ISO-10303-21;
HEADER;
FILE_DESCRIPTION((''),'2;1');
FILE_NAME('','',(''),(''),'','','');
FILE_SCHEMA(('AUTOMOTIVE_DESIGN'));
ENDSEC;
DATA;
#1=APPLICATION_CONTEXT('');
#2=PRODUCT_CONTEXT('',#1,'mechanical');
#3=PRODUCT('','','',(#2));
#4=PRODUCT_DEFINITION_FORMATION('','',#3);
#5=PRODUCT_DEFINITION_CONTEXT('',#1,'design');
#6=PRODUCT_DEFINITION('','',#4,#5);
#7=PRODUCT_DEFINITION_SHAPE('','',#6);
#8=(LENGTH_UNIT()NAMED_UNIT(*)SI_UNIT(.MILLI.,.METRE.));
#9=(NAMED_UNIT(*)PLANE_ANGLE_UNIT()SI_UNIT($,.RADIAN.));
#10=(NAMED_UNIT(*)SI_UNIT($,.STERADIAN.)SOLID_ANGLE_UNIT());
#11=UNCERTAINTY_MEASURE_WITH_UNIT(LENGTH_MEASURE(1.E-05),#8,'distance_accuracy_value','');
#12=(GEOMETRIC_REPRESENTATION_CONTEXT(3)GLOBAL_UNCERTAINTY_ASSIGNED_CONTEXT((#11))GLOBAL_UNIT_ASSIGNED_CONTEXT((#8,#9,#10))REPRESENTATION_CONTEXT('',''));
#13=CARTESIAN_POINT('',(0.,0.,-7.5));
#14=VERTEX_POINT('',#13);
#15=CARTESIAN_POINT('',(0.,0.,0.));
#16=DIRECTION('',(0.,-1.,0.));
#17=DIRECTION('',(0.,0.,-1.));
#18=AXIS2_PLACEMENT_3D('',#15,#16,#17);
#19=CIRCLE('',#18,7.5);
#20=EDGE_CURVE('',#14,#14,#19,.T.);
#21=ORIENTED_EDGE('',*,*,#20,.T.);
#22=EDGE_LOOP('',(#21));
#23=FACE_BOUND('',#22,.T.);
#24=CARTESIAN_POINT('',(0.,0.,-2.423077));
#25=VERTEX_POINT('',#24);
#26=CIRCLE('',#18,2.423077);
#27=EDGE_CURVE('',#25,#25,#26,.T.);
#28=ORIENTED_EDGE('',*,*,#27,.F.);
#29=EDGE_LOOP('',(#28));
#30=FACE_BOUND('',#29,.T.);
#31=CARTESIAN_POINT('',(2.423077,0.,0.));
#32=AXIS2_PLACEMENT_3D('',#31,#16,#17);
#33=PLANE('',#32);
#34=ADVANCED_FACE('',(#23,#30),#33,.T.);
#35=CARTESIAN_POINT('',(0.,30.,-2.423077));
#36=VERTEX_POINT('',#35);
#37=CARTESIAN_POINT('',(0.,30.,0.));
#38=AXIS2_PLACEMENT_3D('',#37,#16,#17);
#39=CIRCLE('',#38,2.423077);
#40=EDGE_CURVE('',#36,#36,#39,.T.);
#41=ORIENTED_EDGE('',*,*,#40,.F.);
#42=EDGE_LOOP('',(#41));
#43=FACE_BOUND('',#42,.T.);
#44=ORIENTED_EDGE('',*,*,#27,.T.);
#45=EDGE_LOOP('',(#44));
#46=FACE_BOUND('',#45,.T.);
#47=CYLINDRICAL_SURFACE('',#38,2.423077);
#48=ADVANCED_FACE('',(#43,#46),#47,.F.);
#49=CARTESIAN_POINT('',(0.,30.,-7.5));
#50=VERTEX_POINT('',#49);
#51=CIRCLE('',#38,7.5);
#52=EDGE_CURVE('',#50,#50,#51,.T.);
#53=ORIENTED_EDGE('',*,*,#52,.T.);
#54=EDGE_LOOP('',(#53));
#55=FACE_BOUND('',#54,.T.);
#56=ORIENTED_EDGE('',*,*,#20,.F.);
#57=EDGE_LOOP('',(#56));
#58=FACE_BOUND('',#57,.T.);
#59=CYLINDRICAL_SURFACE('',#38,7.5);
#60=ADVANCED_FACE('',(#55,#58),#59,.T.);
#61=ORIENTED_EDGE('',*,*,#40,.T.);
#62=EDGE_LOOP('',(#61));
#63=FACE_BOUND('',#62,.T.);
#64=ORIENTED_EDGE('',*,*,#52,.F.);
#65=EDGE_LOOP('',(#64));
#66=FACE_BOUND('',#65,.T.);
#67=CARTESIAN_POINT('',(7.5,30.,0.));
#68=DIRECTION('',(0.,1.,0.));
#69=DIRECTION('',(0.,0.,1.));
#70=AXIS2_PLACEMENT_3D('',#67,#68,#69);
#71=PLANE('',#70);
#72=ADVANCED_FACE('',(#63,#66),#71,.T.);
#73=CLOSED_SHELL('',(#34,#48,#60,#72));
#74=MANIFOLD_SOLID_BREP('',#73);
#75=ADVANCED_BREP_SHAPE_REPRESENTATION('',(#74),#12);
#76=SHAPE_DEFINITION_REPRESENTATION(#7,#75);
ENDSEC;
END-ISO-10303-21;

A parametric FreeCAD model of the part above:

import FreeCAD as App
import Part
import Sketcher

V = App.Vector
Q = App.Units.Quantity

doc = App.newDocument("Part")
body = doc.addObject("PartDesign::Body", "Body")

sketch1 = body.newObject("Sketcher::SketchObject", "Sketch")
sketch1.AttachmentSupport = (doc.getObject("XY_Plane"), [""])
sketch1.MapMode = "FlatFace"
sketch1.addGeometry([
    Part.LineSegment(V(2, 30, 0), V(2, 0, 0)),
    Part.LineSegment(V(2, 0, 0), V(7, 0, 0)),
    Part.LineSegment(V(7, 0, 0), V(7, 30, 0)),
    Part.LineSegment(V(7, 30, 0), V(2, 30, 0)),
], False)
sketch1.addConstraint([
    Sketcher.Constraint("Coincident", 0, 2, 1, 1),
    Sketcher.Constraint("Coincident", 1, 2, 2, 1),
    Sketcher.Constraint("Coincident", 2, 2, 3, 1),
    Sketcher.Constraint("Coincident", 3, 2, 0, 1),
    Sketcher.Constraint("Vertical", 0),
    Sketcher.Constraint("Horizontal", 1),
    Sketcher.Constraint("Vertical", 2),
    Sketcher.Constraint("Horizontal", 3),
    Sketcher.Constraint("PointOnObject", 0, 2, -1),
    Sketcher.Constraint("DistanceY", 0, 2, 0, 1, Q("30 mm")),
    Sketcher.Constraint("DistanceX", -1, 1, 1, 2, Q("7.5 mm")),
    Sketcher.Constraint("DistanceX", 1, 1, 1, 2, Q("5.076923 mm")),
])
revolution = body.newObject("PartDesign::Revolution", "Revolution")
revolution.Profile = sketch1
revolution.ReferenceAxis = (sketch1, ["V_Axis"])
revolution.Angle = 360

doc.recompute()
